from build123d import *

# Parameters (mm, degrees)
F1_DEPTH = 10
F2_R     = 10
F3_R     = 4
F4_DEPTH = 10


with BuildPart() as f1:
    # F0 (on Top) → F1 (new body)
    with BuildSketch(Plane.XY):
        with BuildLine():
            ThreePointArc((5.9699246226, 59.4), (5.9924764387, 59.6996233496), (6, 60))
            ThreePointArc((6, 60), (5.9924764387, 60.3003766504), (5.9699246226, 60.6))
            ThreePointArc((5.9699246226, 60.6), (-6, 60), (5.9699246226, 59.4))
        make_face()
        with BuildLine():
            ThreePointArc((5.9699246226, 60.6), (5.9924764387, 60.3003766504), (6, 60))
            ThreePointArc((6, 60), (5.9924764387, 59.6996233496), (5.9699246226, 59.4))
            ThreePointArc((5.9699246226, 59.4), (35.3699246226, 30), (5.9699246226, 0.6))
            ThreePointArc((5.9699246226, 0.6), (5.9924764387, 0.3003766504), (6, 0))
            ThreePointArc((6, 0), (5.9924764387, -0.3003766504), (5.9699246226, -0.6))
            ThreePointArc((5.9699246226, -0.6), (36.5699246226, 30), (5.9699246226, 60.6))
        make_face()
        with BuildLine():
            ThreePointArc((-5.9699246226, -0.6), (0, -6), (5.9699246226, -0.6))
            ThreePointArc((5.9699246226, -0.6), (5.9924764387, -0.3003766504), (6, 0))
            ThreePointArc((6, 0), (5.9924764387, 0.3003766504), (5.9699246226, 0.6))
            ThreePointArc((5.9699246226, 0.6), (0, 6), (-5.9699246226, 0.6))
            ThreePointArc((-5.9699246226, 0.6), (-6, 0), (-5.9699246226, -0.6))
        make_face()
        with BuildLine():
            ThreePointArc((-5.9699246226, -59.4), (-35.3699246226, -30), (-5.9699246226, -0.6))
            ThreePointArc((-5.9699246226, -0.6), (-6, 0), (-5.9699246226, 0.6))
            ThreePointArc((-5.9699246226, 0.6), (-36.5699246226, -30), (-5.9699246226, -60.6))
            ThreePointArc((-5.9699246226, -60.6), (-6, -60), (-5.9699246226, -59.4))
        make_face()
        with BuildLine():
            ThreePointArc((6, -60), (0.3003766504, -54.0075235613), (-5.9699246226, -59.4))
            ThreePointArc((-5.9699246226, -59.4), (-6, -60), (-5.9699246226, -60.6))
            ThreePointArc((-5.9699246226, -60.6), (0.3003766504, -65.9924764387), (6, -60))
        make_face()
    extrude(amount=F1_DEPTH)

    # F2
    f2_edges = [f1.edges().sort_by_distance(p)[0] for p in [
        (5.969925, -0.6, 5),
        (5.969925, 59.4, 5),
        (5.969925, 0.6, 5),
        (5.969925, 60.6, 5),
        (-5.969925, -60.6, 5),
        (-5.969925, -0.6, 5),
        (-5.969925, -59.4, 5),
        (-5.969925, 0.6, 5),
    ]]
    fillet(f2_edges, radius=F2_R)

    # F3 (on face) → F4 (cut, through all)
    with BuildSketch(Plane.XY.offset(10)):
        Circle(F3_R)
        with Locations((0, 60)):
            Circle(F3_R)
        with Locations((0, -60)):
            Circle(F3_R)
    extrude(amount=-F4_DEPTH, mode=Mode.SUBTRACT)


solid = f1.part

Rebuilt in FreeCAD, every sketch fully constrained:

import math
import FreeCAD as App
import Part
import Sketcher

V = App.Vector


def edges_at(feature, points):
    """Names of the edges that pass closest to the given points."""
    edges = feature.Shape.Edges
    near = lambda p: min(range(len(edges)), key=lambda i: edges[i].distToShape(Part.Vertex(*p))[0])
    return sorted({f"Edge{near(p) + 1}" for p in points})

doc = App.newDocument("Part")
params = doc.addObject("Spreadsheet::Sheet", "Params")
for row, (alias, value) in enumerate([
    ("sketch1_radius", "6 mm"),
    ("sketch1_radius2", "29.4 mm"),
    ("sketch1_radius3", "30.6 mm"),
    ("pad1_length", "10 mm"),
    ("fillet_radius", "10 mm"),
    ("sketch2_diameter", "8 mm"),
], start=1):
    params.set(f"A{row}", alias)
    params.set(f"B{row}", "=" + value)
    params.setAlias(f"B{row}", alias)

body = doc.addObject("PartDesign::Body", "Body")

# Sketch on XY plane
sketch1 = doc.addObject("Sketcher::SketchObject", "Sketch")
body.addObject(sketch1)
sketch1.AttachmentSupport = (doc.XY_Plane, [""])
sketch1.MapMode = "FlatFace"
sketch1.addGeometry([
    Part.ArcOfCircle(Part.Circle(V(0, 60, 0), V(0, 0, 1), 6), math.radians(6), math.radians(354)),  # 0
    Part.ArcOfCircle(Part.Circle(V(6, 30, 0), V(0, 0, 1), 29.4), math.radians(-90), math.radians(90)),  # 1
    Part.ArcOfCircle(Part.Circle(V(0, 0, 0), V(0, 0, 1), 6), math.radians(6), math.radians(174)),  # 2
    Part.ArcOfCircle(Part.Circle(V(-6, -30, 0), V(0, 0, 1), 30.6), math.radians(90), math.radians(270)),  # 3
    Part.ArcOfCircle(Part.Circle(V(0, -60, 0), V(0, 0, 1), 6), math.radians(-174), math.radians(0)),  # 4
    Part.ArcOfCircle(Part.Circle(V(0, -60, 0), V(0, 0, 1), 6), math.radians(0), math.radians(174)),  # 5
    Part.ArcOfCircle(Part.Circle(V(-6, -30, 0), V(0, 0, 1), 29.4), math.radians(90), math.radians(270)),  # 6
    Part.ArcOfCircle(Part.Circle(V(0, 0, 0), V(0, 0, 1), 6), math.radians(-174), math.radians(-6)),  # 7
    Part.ArcOfCircle(Part.Circle(V(6, 30, 0), V(0, 0, 1), 30.6), math.radians(-90), math.radians(90)),  # 8
], False)
sketch1.addConstraint([
    Sketcher.Constraint("Coincident", 0, 2, 1, 2),
    Sketcher.Constraint("Coincident", 1, 1, 2, 1),
    Sketcher.Constraint("Coincident", 2, 2, 3, 1),
    Sketcher.Constraint("Coincident", 3, 2, 4, 1),
    Sketcher.Constraint("Tangent", 4, 2, 5, 1),
    Sketcher.Constraint("Coincident", 5, 2, 6, 2),
    Sketcher.Constraint("Coincident", 6, 1, 7, 1),
    Sketcher.Constraint("Coincident", 7, 2, 8, 1),
    Sketcher.Constraint("Coincident", 8, 2, 0, 1),
    Sketcher.Constraint("Coincident", 2, 3, -1, 1),
    Sketcher.Constraint("Coincident", 7, 3, -1, 1),
    Sketcher.Constraint("Coincident", 6, 3, 3, 3),
    Sketcher.Constraint("Coincident", 8, 3, 1, 3),
    Sketcher.Constraint("Equal", 0, 2),
    Sketcher.Constraint("Equal", 2, 4),
    Sketcher.Constraint("Equal", 4, 5),
    Sketcher.Constraint("Equal", 1, 6),
    Sketcher.Constraint("Equal", 5, 7),
    Sketcher.Constraint("Equal", 3, 8),
    Sketcher.Constraint("Symmetric", 1, 3, 3, 3, -1, 1),
    Sketcher.Constraint("Symmetric", 0, 3, 4, 3, -1, 1),
    Sketcher.Constraint("PointOnObject", 0, 3, -2),
    Sketcher.Constraint("Horizontal", 1, 1, 2, 2),
    Sketcher.Constraint("Horizontal", 5, 3, 4, 2),
    Sketcher.Constraint("Vertical", 8, 3, 0, 2),
    Sketcher.Constraint("Vertical", 0, 2, 1, 1),
    Sketcher.Constraint("Radius", 0, 6.0),
    Sketcher.Constraint("Radius", 1, 29.4),
    Sketcher.Constraint("Radius", 3, 30.6),
])
sketch1.setExpression("Constraints[26]", "Params.sketch1_radius")
sketch1.setExpression("Constraints[27]", "Params.sketch1_radius2")
sketch1.setExpression("Constraints[28]", "Params.sketch1_radius3")
pad1 = doc.addObject("PartDesign::Pad", "Pad")
body.addObject(pad1)
pad1.Profile = sketch1
pad1.setExpression("Length", "Params.pad1_length")
doc.recompute()

fillet = doc.addObject("PartDesign::Fillet", "Fillet")
body.addObject(fillet)
fillet.Base = (pad1, edges_at(pad1, [
    (5.97, -0.6, 5),
    (5.97, 59.4, 5),
    (5.97, 0.6, 5),
    (5.97, 60.6, 5),
    (-5.97, -60.6, 5),
    (-5.97, -0.6, 5),
    (-5.97, -59.4, 5),
    (-5.97, 0.6, 5),
]))
fillet.setExpression("Radius", "Params.fillet_radius")

# Sketch on XY plane
sketch2 = doc.addObject("Sketcher::SketchObject", "Sketch001")
body.addObject(sketch2)
sketch2.AttachmentSupport = (doc.XY_Plane, [""])
sketch2.MapMode = "FlatFace"
sketch2.AttachmentOffset = App.Placement(V(0, 0, 10), App.Rotation())
sketch2.addGeometry([
    Part.Circle(V(0, 0, 0), V(0, 0, 1), 4),
    Part.Circle(V(0, 60, 0), V(0, 0, 1), 4),
    Part.Circle(V(0, -60, 0), V(0, 0, 1), 4),
], False)
sketch2.addConstraint([
    Sketcher.Constraint("Coincident", 0, 3, -1, 1),
    Sketcher.Constraint("Equal", 0, 1),
    Sketcher.Constraint("Equal", 1, 2),
    Sketcher.Constraint("Symmetric", 1, 3, 2, 3, -1, 1),
    Sketcher.Constraint("PointOnObject", 1, 3, -2),
    Sketcher.Constraint("Diameter", 0, 8.0),
    Sketcher.Constraint("DistanceY", -1, 1, 1, 3, 60.0),
])
sketch2.setExpression("Constraints[5]", "Params.sketch2_diameter")
pocket1 = doc.addObject("PartDesign::Pocket", "Pocket")
body.addObject(pocket1)
pocket1.Profile = sketch2
pocket1.Type = "ThroughAll"

doc.recompute()
